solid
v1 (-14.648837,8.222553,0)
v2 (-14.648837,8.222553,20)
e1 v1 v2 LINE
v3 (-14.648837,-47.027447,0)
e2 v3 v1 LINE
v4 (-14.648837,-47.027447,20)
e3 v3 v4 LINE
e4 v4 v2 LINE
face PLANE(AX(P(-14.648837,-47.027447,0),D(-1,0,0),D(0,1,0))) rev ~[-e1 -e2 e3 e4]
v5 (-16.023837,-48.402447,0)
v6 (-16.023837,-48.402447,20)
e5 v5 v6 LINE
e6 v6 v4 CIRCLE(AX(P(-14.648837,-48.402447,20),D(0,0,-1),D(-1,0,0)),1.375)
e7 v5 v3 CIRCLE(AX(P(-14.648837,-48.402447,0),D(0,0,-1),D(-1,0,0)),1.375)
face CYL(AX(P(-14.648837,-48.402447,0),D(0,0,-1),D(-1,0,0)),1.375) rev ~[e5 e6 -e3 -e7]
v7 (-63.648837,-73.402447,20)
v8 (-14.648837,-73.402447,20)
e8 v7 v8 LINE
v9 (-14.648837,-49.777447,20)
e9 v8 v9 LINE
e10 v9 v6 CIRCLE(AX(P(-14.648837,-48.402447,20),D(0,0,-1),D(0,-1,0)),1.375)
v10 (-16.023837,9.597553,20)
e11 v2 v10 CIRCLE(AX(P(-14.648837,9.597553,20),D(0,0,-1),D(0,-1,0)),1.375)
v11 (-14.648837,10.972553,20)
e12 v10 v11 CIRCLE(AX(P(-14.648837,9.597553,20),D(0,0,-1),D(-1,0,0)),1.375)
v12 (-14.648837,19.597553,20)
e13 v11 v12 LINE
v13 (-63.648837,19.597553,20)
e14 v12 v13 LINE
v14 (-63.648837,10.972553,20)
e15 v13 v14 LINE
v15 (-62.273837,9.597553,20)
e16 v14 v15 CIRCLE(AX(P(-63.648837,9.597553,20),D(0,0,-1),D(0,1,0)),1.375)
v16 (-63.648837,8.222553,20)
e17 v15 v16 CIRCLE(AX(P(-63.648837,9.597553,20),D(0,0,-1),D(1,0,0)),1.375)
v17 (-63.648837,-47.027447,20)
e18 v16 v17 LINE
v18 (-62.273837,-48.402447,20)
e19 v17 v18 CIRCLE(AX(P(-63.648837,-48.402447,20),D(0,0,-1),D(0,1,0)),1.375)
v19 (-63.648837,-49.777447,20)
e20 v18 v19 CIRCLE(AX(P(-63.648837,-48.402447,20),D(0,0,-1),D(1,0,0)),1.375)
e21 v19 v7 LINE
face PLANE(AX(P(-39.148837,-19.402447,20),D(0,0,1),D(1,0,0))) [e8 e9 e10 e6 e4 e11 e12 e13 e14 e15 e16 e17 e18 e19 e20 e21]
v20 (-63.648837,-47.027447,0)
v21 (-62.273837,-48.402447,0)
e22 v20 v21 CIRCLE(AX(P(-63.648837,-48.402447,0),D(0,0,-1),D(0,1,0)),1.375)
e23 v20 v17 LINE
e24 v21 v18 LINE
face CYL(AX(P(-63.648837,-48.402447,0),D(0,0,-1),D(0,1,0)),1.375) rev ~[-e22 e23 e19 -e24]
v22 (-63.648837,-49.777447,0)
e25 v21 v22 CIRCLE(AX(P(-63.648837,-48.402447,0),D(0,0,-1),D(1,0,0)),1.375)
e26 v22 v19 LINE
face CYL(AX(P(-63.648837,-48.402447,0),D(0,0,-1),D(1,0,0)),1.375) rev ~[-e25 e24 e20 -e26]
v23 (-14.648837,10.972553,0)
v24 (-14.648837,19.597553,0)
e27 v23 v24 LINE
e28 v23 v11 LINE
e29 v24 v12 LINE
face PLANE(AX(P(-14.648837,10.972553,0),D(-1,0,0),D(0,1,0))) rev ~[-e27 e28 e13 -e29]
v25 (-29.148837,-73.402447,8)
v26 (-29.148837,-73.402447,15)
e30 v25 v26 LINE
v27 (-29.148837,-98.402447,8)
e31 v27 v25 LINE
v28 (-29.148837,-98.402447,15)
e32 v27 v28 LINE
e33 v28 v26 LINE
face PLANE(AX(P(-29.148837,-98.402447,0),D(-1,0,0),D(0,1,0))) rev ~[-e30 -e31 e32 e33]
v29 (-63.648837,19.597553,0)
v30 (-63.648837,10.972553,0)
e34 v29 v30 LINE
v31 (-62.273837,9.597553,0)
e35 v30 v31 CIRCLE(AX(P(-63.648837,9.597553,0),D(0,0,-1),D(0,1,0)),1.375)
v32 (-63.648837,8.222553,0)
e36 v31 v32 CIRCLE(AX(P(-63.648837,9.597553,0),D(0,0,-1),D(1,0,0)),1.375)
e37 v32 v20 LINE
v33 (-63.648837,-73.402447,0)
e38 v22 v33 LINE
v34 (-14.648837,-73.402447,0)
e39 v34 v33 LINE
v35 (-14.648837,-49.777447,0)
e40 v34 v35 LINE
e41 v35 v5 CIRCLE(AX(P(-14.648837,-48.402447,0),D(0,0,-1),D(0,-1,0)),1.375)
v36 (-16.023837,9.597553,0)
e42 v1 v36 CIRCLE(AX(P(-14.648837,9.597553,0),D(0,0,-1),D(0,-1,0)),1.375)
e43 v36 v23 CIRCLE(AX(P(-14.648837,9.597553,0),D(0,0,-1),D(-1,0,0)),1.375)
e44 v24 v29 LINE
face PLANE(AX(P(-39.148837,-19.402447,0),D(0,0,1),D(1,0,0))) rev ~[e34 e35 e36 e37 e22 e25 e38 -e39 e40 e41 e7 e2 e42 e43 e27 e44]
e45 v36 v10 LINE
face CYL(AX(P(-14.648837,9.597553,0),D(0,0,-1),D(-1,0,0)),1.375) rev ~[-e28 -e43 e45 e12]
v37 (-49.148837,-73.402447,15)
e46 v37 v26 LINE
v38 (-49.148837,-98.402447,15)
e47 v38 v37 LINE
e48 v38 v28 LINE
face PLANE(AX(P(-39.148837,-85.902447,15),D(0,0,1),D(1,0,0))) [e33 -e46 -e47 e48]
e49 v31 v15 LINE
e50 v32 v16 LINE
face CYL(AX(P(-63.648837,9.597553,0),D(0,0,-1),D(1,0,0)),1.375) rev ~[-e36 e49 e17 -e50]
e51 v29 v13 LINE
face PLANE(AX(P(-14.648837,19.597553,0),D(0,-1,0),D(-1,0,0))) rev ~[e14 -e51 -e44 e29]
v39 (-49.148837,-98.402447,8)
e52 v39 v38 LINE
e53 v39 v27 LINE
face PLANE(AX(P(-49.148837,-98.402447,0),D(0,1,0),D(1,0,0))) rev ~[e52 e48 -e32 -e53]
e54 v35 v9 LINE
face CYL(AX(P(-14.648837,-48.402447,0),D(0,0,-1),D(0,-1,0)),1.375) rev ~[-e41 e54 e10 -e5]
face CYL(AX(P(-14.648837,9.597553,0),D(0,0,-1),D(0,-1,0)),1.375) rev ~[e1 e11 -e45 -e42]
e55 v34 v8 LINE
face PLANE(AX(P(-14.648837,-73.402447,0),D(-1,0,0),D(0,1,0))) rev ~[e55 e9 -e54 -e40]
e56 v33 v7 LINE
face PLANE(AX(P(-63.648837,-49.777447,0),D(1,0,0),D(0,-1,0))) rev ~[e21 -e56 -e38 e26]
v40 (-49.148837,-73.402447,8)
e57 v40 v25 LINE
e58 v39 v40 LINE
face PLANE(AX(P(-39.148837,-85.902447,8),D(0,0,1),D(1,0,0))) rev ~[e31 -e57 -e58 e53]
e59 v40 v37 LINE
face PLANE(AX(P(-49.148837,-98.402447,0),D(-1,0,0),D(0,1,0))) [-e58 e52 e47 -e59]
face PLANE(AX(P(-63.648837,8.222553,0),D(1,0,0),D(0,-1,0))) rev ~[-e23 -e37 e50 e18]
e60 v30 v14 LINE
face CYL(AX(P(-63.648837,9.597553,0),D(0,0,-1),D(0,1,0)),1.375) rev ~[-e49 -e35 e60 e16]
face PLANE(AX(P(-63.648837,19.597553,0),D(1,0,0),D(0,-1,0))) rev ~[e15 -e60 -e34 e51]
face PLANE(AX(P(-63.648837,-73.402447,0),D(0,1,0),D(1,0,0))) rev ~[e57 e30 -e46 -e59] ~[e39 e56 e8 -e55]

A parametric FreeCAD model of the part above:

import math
import FreeCAD as App
import Part
import Sketcher

V = App.Vector
Q = App.Units.Quantity


def add_polygon(sketch, points):
    """Adds a closed chain of lines whose ends are joined by coincident constraints."""
    first, n = sketch.GeometryCount, len(points)
    for a, b in zip(points, points[1:] + points[:1]):
        sketch.addGeometry(Part.LineSegment(App.Vector(*a, 0), App.Vector(*b, 0)), False)
    for i in range(n):
        sketch.addConstraint(Sketcher.Constraint("Coincident", first + i, 2, first + (i + 1) % n, 1))

doc = App.newDocument("Part")
params = doc.addObject("Spreadsheet::Sheet", "Params")
for row, (alias, value) in enumerate([
    ("sketch1_width", "49 mm"),
    ("pad1_length", "20 mm"),
    ("sketch2_width", "20 mm"),
    ("sketch2_height", "25 mm"),
    ("pad2_length", "15 mm"),
    ("sketch3_width", "20 mm"),
    ("sketch3_height", "25 mm"),
    ("pocket1_length", "8 mm"),
], start=1):
    params.set(f"A{row}", alias)
    params.set(f"B{row}", "=" + value)
    params.setAlias(f"B{row}", alias)

body = doc.addObject("PartDesign::Body", "Body")

# Sketch on XY plane
sketch1 = body.newObject("Sketcher::SketchObject", "Sketch")
sketch1.AttachmentSupport = (doc.getObject("XY_Plane"), [""])
sketch1.MapMode = "FlatFace"
sketch1.addGeometry([
    Part.LineSegment(V(-14.648837, -47.027447, 0), V(-14.648837, 8.222553, 0)),  # 0
    Part.ArcOfCircle(Part.Circle(V(-14.648837, 9.597553, 0), V(0, 0, 1), 1.375), math.radians(180), math.radians(270)),  # 1
    Part.ArcOfCircle(Part.Circle(V(-14.648837, 9.597553, 0), V(0, 0, 1), 1.375), math.radians(90), math.radians(180)),  # 2
    Part.LineSegment(V(-14.648837, 10.972553, 0), V(-14.648837, 19.597553, 0)),  # 3
    Part.LineSegment(V(-14.648837, 19.597553, 0), V(-63.648837, 19.597553, 0)),  # 4
    Part.LineSegment(V(-63.648837, 19.597553, 0), V(-63.648837, 10.972553, 0)),  # 5
    Part.ArcOfCircle(Part.Circle(V(-63.648837, 9.597553, 0), V(0, 0, 1), 1.375), math.radians(0), math.radians(90)),  # 6
    Part.ArcOfCircle(Part.Circle(V(-63.648837, 9.597553, 0), V(0, 0, 1), 1.375), math.radians(-90), math.radians(0)),  # 7
    Part.LineSegment(V(-63.648837, 8.222553, 0), V(-63.648837, -47.027447, 0)),  # 8
    Part.ArcOfCircle(Part.Circle(V(-63.648837, -48.402447, 0), V(0, 0, 1), 1.375), math.radians(0), math.radians(90)),  # 9
    Part.ArcOfCircle(Part.Circle(V(-63.648837, -48.402447, 0), V(0, 0, 1), 1.375), math.radians(-90), math.radians(0)),  # 10
    Part.LineSegment(V(-63.648837, -49.777447, 0), V(-63.648837, -73.402447, 0)),  # 11
    Part.LineSegment(V(-63.648837, -73.402447, 0), V(-14.648837, -73.402447, 0)),  # 12
    Part.LineSegment(V(-14.648837, -73.402447, 0), V(-14.648837, -49.777447, 0)),  # 13
    Part.ArcOfCircle(Part.Circle(V(-14.648837, -48.402447, 0), V(0, 0, 1), 1.375), math.radians(180), math.radians(270)),  # 14
    Part.ArcOfCircle(Part.Circle(V(-14.648837, -48.402447, 0), V(0, 0, 1), 1.375), math.radians(90), math.radians(180)),  # 15
], False)
sketch1.addConstraint([
    Sketcher.Constraint("Coincident", 0, 2, 1, 2),
    Sketcher.Constraint("Tangent", 1, 1, 2, 2),
    Sketcher.Constraint("Coincident", 2, 1, 3, 1),
    Sketcher.Constraint("Coincident", 3, 2, 4, 1),
    Sketcher.Constraint("Coincident", 4, 2, 5, 1),
    Sketcher.Constraint("Coincident", 5, 2, 6, 2),
    Sketcher.Constraint("Tangent", 6, 1, 7, 2),
    Sketcher.Constraint("Coincident", 7, 1, 8, 1),
    Sketcher.Constraint("Coincident", 8, 2, 9, 2),
    Sketcher.Constraint("Tangent", 9, 1, 10, 2),
    Sketcher.Constraint("Coincident", 10, 1, 11, 1),
    Sketcher.Constraint("Coincident", 11, 2, 12, 1),
    Sketcher.Constraint("Coincident", 12, 2, 13, 1),
    Sketcher.Constraint("Coincident", 13, 2, 14, 2),
    Sketcher.Constraint("Tangent", 14, 1, 15, 2),
    Sketcher.Constraint("Coincident", 15, 1, 0, 1),
    Sketcher.Constraint("Vertical", 0),
    Sketcher.Constraint("Vertical", 3),
    Sketcher.Constraint("Horizontal", 4),
    Sketcher.Constraint("Vertical", 5),
    Sketcher.Constraint("Vertical", 8),
    Sketcher.Constraint("Vertical", 11),
    Sketcher.Constraint("Horizontal", 12),
    Sketcher.Constraint("Vertical", 13),
    Sketcher.Constraint("Equal", 1, 2),
    Sketcher.Constraint("Equal", 2, 6),
    Sketcher.Constraint("Equal", 6, 7),
    Sketcher.Constraint("Equal", 7, 9),
    Sketcher.Constraint("Equal", 9, 10),
    Sketcher.Constraint("Equal", 10, 14),
    Sketcher.Constraint("Equal", 14, 15),
    Sketcher.Constraint("Horizontal", 2, 3, 6, 3),
    Sketcher.Constraint("Horizontal", 10, 3, 14, 3),
    Sketcher.Constraint("Horizontal", 7, 3, 1, 1),
    Sketcher.Constraint("Horizontal", 1, 1, 6, 1),
    Sketcher.Constraint("Horizontal", 15, 3, 9, 1),
    Sketcher.Constraint("Horizontal", 9, 1, 14, 1),
    Sketcher.Constraint("Vertical", 7, 3, 9, 3),
    Sketcher.Constraint("Vertical", 2, 3, 14, 3),
    Sketcher.Constraint("Vertical", 15, 3, 0, 2),
    Sketcher.Constraint("Vertical", 0, 2, 2, 1),
    Sketcher.Constraint("Vertical", 10, 3, 4, 2),
    Sketcher.Constraint("Vertical", 5, 2, 7, 1),
    Sketcher.Constraint("Vertical", 8, 2, 10, 1),
    Sketcher.Constraint("Vertical", 3, 2, 12, 2),
    Sketcher.Constraint("DistanceX", 4, 2, 4, 1, Q("49 mm")),
    Sketcher.Constraint("Radius", 1, Q("1.375 mm")),
    Sketcher.Constraint("DistanceY", 9, 3, 6, 3, Q("58 mm")),
    Sketcher.Constraint("DistanceY", 2, 3, 3, 2, Q("10 mm")),
    Sketcher.Constraint("DistanceY", 11, 2, 9, 3, Q("25 mm")),
    Sketcher.Constraint("DistanceX", 1, 3, -1, 1, Q("14.648837 mm")),
    Sketcher.Constraint("DistanceY", -1, 1, 1, 3, Q("9.597553 mm")),
])
sketch1.setExpression("Constraints[45]", "Params.sketch1_width")
pad1 = body.newObject("PartDesign::Pad", "Pad")
pad1.Profile = sketch1
pad1.setExpression("Length", "Params.pad1_length")

# Sketch on XY plane
sketch2 = body.newObject("Sketcher::SketchObject", "Sketch001")
sketch2.AttachmentSupport = (doc.getObject("XY_Plane"), [""])
sketch2.MapMode = "FlatFace"
add_polygon(sketch2, [(-49.148837, -73.402447), (-49.148837, -98.402447), (-29.148837, -98.402447), (-29.148837, -73.402447)])  # lines 0-3
sketch2.addConstraint([
    Sketcher.Constraint("Vertical", 0),
    Sketcher.Constraint("Horizontal", 1),
    Sketcher.Constraint("Vertical", 2),
    Sketcher.Constraint("Horizontal", 3),
    Sketcher.Constraint("DistanceX", 1, 1, 1, 2, Q("20 mm")),
    Sketcher.Constraint("DistanceY", 0, 2, 0, 1, Q("25 mm")),
    Sketcher.Constraint("DistanceX", 0, 2, -1, 1, Q("49.148837 mm")),
    Sketcher.Constraint("DistanceY", 0, 2, -1, 1, Q("98.402447 mm")),
])
sketch2.setExpression("Constraints[8]", "Params.sketch2_width")
sketch2.setExpression("Constraints[9]", "Params.sketch2_height")
pad2 = body.newObject("PartDesign::Pad", "Pad001")
pad2.Profile = sketch2
pad2.setExpression("Length", "Params.pad2_length")

# Sketch on XY plane
sketch3 = body.newObject("Sketcher::SketchObject", "Sketch002")
sketch3.AttachmentSupport = (doc.getObject("XY_Plane"), [""])
sketch3.MapMode = "FlatFace"
add_polygon(sketch3, [(-49.148837, -73.402447), (-49.148837, -98.402447), (-29.148837, -98.402447), (-29.148837, -73.402447)])  # lines 0-3
sketch3.addConstraint([
    Sketcher.Constraint("Vertical", 0),
    Sketcher.Constraint("Horizontal", 1),
    Sketcher.Constraint("Vertical", 2),
    Sketcher.Constraint("Horizontal", 3),
    Sketcher.Constraint("DistanceX", 1, 1, 1, 2, Q("20 mm")),
    Sketcher.Constraint("DistanceY", 0, 2, 0, 1, Q("25 mm")),
    Sketcher.Constraint("DistanceX", 0, 2, -1, 1, Q("49.148837 mm")),
    Sketcher.Constraint("DistanceY", 0, 2, -1, 1, Q("98.402447 mm")),
])
sketch3.setExpression("Constraints[8]", "Params.sketch3_width")
sketch3.setExpression("Constraints[9]", "Params.sketch3_height")
pocket1 = body.newObject("PartDesign::Pocket", "Pocket")
pocket1.Profile = sketch3
pocket1.setExpression("Length", "Params.pocket1_length")
pocket1.Reversed = True

doc.recompute()
